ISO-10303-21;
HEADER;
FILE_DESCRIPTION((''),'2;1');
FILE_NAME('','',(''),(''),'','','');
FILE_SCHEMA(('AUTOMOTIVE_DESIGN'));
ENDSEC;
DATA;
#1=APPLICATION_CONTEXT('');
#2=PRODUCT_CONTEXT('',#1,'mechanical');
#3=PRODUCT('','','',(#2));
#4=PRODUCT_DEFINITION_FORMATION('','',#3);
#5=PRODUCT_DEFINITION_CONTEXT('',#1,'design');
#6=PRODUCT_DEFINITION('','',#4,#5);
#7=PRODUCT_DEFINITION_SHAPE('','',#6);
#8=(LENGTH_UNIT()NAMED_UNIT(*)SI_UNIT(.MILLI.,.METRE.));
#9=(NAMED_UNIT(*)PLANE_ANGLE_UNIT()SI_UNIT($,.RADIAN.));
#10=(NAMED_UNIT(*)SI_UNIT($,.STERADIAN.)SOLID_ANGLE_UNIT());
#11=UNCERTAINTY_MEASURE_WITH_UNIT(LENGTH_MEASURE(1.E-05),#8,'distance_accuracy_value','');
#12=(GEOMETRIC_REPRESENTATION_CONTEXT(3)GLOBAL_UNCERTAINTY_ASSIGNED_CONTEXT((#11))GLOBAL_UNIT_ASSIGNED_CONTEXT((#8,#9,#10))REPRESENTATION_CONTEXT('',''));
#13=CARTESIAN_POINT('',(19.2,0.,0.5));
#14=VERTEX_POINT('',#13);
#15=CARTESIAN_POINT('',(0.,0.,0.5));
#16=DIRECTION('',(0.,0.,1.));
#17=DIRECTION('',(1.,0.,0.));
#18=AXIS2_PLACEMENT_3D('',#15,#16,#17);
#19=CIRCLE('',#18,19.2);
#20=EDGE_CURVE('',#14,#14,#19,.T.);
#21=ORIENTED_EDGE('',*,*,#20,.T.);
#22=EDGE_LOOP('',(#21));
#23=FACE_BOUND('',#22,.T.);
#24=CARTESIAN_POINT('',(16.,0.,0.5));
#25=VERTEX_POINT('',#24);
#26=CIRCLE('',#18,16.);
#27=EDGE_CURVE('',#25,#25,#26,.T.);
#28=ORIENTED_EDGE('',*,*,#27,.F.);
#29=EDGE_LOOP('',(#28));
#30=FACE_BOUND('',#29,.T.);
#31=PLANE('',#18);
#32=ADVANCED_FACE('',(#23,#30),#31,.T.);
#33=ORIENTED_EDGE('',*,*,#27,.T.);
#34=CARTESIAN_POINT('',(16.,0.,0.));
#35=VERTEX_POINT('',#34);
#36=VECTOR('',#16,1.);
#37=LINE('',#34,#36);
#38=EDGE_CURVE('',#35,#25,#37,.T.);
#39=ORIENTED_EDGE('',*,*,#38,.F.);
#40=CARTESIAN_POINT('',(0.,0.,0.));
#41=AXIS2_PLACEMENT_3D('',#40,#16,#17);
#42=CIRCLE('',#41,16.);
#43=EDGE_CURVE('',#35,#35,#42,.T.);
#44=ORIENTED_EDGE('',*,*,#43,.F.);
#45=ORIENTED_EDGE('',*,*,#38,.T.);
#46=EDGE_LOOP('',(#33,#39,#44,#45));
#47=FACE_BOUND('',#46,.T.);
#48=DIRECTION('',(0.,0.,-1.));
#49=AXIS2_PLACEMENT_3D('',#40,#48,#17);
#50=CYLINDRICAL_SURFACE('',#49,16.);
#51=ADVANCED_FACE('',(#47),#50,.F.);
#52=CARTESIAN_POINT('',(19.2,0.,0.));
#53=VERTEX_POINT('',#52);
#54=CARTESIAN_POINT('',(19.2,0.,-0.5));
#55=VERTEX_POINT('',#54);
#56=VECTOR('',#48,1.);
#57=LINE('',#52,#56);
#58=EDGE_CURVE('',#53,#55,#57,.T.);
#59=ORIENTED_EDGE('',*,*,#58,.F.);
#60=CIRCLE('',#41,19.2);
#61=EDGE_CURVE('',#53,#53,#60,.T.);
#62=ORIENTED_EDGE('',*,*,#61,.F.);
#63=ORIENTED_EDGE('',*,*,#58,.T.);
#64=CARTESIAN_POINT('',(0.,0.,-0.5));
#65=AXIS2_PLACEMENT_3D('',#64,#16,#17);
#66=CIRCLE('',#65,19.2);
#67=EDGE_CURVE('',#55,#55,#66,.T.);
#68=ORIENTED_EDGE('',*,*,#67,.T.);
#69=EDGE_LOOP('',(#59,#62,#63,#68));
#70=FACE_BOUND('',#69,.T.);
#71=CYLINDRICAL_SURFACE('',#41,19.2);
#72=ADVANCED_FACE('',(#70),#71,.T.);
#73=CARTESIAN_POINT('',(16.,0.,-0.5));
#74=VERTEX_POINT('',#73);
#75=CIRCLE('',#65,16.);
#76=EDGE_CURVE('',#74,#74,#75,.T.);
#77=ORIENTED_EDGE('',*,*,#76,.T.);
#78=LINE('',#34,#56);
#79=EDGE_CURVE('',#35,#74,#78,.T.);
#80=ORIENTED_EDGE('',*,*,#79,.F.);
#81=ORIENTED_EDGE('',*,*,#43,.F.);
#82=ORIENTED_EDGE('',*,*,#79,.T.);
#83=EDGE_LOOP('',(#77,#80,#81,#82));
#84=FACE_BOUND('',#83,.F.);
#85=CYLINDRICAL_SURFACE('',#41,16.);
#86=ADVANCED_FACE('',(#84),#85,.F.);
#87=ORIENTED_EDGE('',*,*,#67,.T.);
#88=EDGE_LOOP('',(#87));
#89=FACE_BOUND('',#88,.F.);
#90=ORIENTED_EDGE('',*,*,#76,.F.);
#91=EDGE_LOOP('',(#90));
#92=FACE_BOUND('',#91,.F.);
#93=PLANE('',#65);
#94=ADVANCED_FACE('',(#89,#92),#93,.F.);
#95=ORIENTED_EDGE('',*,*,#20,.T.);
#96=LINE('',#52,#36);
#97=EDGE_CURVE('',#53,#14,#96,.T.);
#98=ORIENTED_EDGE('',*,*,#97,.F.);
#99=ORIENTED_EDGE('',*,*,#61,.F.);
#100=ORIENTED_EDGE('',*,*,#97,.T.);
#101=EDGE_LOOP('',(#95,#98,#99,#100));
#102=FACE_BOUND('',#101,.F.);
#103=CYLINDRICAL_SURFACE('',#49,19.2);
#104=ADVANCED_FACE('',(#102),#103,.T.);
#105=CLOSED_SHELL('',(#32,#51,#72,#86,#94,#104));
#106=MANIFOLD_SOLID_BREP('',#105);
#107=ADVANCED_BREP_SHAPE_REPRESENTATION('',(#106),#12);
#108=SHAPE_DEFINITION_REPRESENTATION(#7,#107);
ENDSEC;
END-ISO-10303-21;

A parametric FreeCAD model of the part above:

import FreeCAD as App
import Part
import Sketcher

V = App.Vector
Q = App.Units.Quantity

doc = App.newDocument("Part")
body = doc.addObject("PartDesign::Body", "Body")

# Sketch on XY plane
sketch1 = doc.addObject("Sketcher::SketchObject", "Sketch")
body.addObject(sketch1)
sketch1.AttachmentSupport = (doc.XY_Plane, [""])
sketch1.MapMode = "FlatFace"
sketch1.addGeometry(Part.Circle(V(0, 0, 0), V(0, 0, 1), 19), False)
sketch1.addGeometry(Part.Circle(V(0, 0, 0), V(0, 0, 1), 16), False)
sketch1.addConstraint(Sketcher.Constraint("Coincident", 0, 3, -1, 1))
sketch1.addConstraint(Sketcher.Constraint("Coincident", 1, 3, -1, 1))
sketch1.addConstraint(Sketcher.Constraint("Diameter", 1, Q("32 mm")))
sketch1.addConstraint(Sketcher.Constraint("Diameter", 0, Q("38.4 mm")))
pad1 = doc.addObject("PartDesign::Pad", "Pad")
body.addObject(pad1)
pad1.Profile = sketch1
pad1.Length = 1
pad1.Midplane = True

doc.recompute()
